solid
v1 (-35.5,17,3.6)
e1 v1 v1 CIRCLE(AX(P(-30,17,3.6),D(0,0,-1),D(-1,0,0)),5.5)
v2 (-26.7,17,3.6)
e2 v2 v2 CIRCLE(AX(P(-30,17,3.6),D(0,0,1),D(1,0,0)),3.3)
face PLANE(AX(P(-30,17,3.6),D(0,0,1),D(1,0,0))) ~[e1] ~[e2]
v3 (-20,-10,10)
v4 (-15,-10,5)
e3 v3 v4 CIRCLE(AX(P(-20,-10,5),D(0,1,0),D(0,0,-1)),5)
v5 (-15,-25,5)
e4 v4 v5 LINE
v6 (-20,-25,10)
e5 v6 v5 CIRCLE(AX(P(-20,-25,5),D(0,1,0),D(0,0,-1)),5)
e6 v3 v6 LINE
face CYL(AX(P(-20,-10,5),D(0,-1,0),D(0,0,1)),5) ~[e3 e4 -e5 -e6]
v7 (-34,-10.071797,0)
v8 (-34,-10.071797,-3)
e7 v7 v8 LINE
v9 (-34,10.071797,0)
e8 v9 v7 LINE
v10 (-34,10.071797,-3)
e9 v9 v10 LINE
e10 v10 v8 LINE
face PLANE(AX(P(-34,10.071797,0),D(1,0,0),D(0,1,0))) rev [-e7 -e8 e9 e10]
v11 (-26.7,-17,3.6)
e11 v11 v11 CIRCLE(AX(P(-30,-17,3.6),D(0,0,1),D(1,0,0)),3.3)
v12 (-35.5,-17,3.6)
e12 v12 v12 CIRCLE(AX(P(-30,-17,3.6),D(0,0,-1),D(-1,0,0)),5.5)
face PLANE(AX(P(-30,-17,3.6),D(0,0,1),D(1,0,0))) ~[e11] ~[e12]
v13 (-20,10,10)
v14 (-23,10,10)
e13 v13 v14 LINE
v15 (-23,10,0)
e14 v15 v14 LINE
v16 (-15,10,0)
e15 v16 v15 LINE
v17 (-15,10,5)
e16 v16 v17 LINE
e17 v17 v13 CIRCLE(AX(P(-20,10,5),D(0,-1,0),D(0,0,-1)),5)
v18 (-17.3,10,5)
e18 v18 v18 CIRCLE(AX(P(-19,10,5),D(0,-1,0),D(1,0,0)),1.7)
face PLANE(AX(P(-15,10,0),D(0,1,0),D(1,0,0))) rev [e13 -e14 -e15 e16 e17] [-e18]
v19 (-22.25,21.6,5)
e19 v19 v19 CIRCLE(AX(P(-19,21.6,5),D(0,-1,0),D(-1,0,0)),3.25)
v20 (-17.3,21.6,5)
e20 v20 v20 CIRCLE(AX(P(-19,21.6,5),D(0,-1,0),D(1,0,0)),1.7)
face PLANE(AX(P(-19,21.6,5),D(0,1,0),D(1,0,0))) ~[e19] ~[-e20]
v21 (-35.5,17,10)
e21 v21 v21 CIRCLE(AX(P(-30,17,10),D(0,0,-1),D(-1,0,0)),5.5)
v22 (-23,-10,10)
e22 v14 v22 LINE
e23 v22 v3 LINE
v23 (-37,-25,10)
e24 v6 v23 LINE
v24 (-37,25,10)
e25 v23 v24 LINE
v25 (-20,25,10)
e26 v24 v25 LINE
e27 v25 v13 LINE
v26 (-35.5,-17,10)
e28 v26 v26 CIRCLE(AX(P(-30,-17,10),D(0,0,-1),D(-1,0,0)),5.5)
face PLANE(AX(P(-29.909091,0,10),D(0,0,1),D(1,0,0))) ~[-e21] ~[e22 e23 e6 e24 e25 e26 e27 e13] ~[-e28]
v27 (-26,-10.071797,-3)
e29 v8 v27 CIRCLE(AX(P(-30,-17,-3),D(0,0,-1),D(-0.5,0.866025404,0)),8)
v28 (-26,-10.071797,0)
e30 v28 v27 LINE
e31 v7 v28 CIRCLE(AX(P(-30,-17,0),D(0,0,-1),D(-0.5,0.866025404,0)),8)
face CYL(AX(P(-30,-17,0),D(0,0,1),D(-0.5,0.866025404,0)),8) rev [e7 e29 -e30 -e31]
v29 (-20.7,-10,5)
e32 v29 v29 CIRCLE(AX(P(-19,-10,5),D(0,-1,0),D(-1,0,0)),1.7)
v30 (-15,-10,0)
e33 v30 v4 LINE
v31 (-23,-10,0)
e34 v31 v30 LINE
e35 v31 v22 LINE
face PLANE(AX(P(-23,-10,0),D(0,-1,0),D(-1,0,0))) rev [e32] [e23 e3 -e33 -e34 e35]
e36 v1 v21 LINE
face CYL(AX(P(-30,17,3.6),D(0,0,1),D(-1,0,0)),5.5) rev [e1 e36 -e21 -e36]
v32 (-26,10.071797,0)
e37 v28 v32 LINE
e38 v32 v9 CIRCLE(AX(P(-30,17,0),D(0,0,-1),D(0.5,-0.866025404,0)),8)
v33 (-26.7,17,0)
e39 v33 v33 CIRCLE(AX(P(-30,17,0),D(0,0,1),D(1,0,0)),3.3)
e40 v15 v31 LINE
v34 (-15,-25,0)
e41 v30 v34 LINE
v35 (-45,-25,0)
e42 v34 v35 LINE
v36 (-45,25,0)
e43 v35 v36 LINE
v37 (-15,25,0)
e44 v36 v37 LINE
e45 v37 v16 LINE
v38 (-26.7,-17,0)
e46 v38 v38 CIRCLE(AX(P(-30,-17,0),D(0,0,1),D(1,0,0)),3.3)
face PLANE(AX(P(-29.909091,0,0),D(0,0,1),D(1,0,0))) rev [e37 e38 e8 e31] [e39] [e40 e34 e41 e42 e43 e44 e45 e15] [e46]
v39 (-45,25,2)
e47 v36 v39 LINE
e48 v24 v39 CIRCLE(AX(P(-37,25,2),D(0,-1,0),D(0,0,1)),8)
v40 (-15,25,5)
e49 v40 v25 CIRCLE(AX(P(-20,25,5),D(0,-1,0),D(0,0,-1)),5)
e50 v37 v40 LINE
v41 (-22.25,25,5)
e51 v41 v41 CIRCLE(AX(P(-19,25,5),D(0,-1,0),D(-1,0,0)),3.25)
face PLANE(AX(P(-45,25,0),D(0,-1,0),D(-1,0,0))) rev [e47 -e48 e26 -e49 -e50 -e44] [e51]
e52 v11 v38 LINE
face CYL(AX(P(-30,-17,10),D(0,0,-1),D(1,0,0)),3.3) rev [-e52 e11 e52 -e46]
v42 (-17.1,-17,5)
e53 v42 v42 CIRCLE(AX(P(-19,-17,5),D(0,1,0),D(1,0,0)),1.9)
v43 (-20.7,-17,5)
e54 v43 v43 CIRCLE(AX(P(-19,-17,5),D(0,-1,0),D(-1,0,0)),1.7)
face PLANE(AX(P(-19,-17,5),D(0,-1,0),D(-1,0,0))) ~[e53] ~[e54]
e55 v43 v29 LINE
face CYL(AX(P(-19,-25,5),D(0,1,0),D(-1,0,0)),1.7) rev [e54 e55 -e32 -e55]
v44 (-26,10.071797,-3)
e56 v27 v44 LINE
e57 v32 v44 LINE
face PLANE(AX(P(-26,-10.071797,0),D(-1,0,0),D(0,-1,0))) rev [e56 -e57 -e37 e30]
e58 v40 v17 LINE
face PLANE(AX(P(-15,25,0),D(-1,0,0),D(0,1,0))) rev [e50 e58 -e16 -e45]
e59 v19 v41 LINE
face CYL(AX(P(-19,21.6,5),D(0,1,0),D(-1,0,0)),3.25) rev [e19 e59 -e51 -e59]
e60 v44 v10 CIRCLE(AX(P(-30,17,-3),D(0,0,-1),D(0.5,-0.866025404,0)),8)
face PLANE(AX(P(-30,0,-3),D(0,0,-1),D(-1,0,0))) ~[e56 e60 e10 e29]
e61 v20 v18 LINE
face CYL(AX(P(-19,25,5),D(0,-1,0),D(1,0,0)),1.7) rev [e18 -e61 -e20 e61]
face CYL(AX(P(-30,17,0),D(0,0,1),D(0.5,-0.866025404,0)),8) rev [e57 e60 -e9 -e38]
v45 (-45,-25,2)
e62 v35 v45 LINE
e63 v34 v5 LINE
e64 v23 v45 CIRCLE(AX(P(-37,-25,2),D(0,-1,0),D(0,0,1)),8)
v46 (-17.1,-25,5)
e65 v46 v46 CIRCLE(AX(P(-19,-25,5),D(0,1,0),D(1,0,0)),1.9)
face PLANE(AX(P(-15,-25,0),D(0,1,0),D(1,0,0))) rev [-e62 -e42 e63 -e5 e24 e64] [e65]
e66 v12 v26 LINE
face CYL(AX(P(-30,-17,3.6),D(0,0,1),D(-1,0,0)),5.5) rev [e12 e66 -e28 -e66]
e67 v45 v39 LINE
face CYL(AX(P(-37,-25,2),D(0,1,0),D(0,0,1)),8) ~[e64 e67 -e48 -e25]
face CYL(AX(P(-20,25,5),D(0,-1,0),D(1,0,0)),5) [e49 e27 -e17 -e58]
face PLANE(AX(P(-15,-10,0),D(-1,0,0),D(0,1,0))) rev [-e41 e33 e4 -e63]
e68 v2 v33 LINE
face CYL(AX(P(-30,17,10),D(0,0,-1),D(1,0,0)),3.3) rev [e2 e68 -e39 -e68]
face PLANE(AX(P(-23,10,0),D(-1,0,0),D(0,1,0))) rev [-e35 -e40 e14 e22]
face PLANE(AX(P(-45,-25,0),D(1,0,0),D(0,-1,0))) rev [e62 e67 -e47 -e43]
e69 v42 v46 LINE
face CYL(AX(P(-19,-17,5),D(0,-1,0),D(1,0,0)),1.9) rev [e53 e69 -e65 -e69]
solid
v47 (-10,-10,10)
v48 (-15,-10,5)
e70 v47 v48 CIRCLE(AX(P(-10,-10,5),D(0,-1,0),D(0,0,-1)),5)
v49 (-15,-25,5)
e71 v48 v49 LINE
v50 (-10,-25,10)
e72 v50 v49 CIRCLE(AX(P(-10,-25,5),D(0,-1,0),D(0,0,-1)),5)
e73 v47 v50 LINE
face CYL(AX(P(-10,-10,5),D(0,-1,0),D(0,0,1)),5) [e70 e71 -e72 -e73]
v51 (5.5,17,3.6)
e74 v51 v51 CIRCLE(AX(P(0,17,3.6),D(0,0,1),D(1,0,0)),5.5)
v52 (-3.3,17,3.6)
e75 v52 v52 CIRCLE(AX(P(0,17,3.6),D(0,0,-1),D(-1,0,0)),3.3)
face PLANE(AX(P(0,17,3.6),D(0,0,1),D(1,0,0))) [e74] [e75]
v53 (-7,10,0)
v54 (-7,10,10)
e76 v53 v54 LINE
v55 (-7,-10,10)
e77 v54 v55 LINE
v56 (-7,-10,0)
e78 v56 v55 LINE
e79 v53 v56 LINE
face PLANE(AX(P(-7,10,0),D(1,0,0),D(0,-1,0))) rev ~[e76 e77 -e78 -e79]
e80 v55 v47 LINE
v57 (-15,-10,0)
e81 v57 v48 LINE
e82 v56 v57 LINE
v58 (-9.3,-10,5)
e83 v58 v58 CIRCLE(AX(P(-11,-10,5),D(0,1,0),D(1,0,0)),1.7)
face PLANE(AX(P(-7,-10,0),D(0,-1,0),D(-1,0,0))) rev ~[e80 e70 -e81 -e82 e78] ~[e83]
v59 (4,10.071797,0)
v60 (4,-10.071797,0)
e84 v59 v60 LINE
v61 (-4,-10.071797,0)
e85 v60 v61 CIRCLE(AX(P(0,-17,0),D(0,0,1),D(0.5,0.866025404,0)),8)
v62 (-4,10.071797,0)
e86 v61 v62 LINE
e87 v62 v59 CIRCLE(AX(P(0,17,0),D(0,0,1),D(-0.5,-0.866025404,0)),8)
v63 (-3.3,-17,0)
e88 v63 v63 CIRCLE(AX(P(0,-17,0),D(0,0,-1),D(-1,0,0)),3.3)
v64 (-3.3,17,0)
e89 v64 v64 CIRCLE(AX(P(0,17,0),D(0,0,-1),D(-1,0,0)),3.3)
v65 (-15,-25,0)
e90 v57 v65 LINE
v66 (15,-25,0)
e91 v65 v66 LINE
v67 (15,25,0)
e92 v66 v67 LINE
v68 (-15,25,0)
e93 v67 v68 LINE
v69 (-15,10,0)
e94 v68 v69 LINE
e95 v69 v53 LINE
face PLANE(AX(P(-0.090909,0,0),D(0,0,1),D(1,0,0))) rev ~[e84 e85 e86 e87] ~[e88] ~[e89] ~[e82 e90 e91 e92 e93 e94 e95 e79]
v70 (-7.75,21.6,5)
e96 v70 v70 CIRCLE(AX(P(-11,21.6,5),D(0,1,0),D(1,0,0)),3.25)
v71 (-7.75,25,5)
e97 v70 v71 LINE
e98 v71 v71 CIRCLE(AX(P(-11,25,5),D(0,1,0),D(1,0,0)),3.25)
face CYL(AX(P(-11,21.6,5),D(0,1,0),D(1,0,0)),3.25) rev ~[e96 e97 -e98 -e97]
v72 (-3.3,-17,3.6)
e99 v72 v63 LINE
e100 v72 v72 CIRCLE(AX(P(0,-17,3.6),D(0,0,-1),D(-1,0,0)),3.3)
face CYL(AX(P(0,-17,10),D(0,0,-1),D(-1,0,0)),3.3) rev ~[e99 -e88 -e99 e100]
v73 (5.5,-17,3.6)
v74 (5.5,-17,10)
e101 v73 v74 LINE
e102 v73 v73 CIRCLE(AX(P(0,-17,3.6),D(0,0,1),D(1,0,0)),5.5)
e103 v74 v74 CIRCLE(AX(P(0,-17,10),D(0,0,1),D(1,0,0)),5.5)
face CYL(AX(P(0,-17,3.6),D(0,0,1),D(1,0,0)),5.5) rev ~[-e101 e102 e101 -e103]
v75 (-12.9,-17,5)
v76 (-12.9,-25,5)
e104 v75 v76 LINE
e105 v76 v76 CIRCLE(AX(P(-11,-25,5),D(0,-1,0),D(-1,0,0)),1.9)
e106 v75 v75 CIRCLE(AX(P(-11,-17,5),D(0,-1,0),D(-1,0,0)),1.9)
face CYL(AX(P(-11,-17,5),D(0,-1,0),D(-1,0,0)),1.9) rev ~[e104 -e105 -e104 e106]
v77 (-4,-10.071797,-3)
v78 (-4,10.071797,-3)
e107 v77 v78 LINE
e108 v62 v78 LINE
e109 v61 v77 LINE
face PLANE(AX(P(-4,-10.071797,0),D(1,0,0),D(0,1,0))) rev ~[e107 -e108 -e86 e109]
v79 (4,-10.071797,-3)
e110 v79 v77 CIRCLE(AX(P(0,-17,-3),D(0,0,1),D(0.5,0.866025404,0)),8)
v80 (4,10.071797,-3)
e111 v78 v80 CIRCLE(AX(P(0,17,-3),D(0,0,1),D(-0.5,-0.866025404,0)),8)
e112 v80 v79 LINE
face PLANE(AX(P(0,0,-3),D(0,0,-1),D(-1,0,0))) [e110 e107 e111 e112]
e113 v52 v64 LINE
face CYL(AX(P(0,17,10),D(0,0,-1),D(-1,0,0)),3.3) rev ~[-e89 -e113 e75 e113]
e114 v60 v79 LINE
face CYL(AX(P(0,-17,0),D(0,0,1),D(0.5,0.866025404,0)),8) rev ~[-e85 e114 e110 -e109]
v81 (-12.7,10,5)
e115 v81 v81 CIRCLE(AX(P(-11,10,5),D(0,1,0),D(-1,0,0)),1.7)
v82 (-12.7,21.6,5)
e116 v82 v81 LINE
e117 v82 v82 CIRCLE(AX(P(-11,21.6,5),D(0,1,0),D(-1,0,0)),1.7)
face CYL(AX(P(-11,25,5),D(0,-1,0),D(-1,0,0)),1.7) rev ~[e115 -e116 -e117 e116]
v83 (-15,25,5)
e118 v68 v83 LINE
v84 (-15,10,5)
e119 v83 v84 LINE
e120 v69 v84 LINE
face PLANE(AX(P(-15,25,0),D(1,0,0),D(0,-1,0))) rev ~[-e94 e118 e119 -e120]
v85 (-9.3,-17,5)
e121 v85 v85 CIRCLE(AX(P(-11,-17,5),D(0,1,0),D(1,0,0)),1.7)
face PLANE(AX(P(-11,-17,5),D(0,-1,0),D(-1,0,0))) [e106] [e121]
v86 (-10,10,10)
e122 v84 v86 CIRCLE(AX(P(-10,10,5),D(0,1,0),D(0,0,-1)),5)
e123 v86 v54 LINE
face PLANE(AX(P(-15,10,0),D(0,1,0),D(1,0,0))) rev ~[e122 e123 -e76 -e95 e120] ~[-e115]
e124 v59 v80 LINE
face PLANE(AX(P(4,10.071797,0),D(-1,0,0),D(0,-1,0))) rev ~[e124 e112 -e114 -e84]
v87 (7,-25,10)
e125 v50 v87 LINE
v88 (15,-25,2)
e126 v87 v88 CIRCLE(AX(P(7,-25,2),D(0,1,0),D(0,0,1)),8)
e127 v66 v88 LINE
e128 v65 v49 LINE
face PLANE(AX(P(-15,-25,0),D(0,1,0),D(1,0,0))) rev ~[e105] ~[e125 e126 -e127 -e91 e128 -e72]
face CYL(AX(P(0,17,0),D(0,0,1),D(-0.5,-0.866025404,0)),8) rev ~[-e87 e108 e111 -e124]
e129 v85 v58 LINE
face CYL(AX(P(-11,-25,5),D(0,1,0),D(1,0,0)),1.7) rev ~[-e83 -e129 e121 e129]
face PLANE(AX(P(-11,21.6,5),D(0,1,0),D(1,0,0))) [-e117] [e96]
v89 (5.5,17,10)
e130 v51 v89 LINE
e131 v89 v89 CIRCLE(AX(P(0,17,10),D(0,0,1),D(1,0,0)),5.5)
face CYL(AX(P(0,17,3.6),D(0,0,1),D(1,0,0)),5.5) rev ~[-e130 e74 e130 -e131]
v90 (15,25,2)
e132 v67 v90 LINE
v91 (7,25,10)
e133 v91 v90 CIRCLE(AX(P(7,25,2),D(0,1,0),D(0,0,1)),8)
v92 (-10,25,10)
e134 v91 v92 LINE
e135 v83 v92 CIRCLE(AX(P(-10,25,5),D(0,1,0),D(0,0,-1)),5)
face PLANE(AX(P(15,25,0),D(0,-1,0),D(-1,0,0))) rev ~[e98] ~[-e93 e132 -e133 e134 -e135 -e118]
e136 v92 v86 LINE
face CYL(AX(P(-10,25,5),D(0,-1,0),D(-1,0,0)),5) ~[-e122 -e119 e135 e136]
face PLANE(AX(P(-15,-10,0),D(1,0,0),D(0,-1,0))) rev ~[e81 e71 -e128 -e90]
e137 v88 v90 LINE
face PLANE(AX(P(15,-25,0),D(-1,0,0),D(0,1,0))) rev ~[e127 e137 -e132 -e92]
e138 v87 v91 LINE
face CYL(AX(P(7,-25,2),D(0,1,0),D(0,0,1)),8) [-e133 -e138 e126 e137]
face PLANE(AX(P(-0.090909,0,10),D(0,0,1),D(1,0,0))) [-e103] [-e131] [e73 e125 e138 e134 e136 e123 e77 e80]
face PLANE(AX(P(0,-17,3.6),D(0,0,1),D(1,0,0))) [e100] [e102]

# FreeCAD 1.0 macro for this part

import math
import FreeCAD as App
import Part
import Sketcher
from FreeCAD import Vector


def edges_at(feature, points):
    """Names of the edges that pass closest to the given points."""
    edges = feature.Shape.Edges
    near = lambda p: min(range(len(edges)), key=lambda i: edges[i].distToShape(Part.Vertex(*p))[0])
    return sorted({f"Edge{near(p) + 1}" for p in points})


def add_polygon(sketch, points):
    """Adds a closed chain of lines whose ends are joined by coincident constraints."""
    first, n = sketch.GeometryCount, len(points)
    for a, b in zip(points, points[1:] + points[:1]):
        sketch.addGeometry(Part.LineSegment(App.Vector(*a, 0), App.Vector(*b, 0)), False)
    for i in range(n):
        sketch.addConstraint(Sketcher.Constraint("Coincident", first + i, 2, first + (i + 1) % n, 1))

doc = App.newDocument("Part")
body = doc.addObject("PartDesign::Body", "Body")

sketch1 = doc.addObject("Sketcher::SketchObject", "Sketch")
body.addObject(sketch1)
sketch1.AttachmentSupport = (doc.XY_Plane, [""])
sketch1.MapMode = "FlatFace"
add_polygon(sketch1, [(-15, 25), (-15, 10), (-7, 10), (-7, -10), (-15, -10), (-15, -25), (15, -25), (15, 25)])
sketch1.addConstraint(Sketcher.Constraint("Vertical", 0))
sketch1.addConstraint(Sketcher.Constraint("Horizontal", 1))
sketch1.addConstraint(Sketcher.Constraint("Vertical", 2))
sketch1.addConstraint(Sketcher.Constraint("Horizontal", 3))
sketch1.addConstraint(Sketcher.Constraint("Vertical", 4))
sketch1.addConstraint(Sketcher.Constraint("Horizontal", 5))
sketch1.addConstraint(Sketcher.Constraint("Vertical", 6))
sketch1.addConstraint(Sketcher.Constraint("Horizontal", 7))
sketch1.addConstraint(Sketcher.Constraint("Symmetric", 4, 2, 6, 2, -1, 1))
sketch1.addConstraint(Sketcher.Constraint("Symmetric", 0, 2, 3, 2, -1))
sketch1.addConstraint(Sketcher.Constraint("DistanceX", 1, 1, 1, 2, 8.0))
sketch1.addConstraint(Sketcher.Constraint("DistanceX", 5, 1, 5, 2, 30.0))
sketch1.addConstraint(Sketcher.Constraint("DistanceY", 0, 2, 0, 1, 15.0))
sketch1.addConstraint(Sketcher.Constraint("DistanceY", 2, 2, 2, 1, 20.0))
pad1 = doc.addObject("PartDesign::Pad", "Pad")
body.addObject(pad1)
pad1.Profile = sketch1
pad1.Length = 10

sketch2 = doc.addObject("Sketcher::SketchObject", "Sketch001")
body.addObject(sketch2)
sketch2.AttachmentSupport = (doc.XY_Plane, [""])
sketch2.MapMode = "FlatFace"
sketch2.AttachmentOffset = App.Placement(Vector(0, 0, 10), App.Rotation())
sketch2.addGeometry(Part.Circle(Vector(0, 17, 0), Vector(0, 0, 1), 3.3), False)
sketch2.addGeometry(Part.Circle(Vector(0, -17, 0), Vector(0, 0, 1), 3.3), False)
sketch2.addConstraint(Sketcher.Constraint("Equal", 0, 1))
sketch2.addConstraint(Sketcher.Constraint("Symmetric", 0, 3, 1, 3, -1, 1))
sketch2.addConstraint(Sketcher.Constraint("PointOnObject", 0, 3, -2))
sketch2.addConstraint(Sketcher.Constraint("Diameter", 0, 6.6))
sketch2.addConstraint(Sketcher.Constraint("DistanceY", -1, 1, 0, 3, 17.0))
doc.recompute()
hole = doc.addObject("PartDesign::Hole", "Hole")
body.addObject(hole)
hole.Profile = sketch2
hole.ThreadType = "None"
hole.Diameter = 6.6
hole.DepthType = "ThroughAll"
hole.HoleCutType = "Counterbore"
hole.HoleCutDiameter = 11
hole.HoleCutDepth = 6.4

sketch3 = doc.addObject("Sketcher::SketchObject", "Sketch002")
body.addObject(sketch3)
sketch3.AttachmentSupport = (doc.XZ_Plane, [""])
sketch3.MapMode = "FlatFace"
sketch3.AttachmentOffset = App.Placement(Vector(0, 0, -25), App.Rotation())
sketch3.addGeometry(Part.Circle(Vector(-11, 5, 0), Vector(0, 0, 1), 1.7), False)
sketch3.addConstraint(Sketcher.Constraint("Diameter", 0, 3.4))
sketch3.addConstraint(Sketcher.Constraint("DistanceX", 0, 3, -1, 1, 11.0))
sketch3.addConstraint(Sketcher.Constraint("DistanceY", -1, 1, 0, 3, 5.0))
doc.recompute()
hole2 = doc.addObject("PartDesign::Hole", "Hole001")
body.addObject(hole2)
hole2.Profile = sketch3
hole2.ThreadType = "None"
hole2.Diameter = 3.4
hole2.DepthType = "Dimension"
hole2.Depth = 15
hole2.DrillPoint = "Flat"
hole2.HoleCutType = "Counterbore"
hole2.HoleCutDiameter = 6.5
hole2.HoleCutDepth = 3.4
hole2.Reversed = True

sketch4 = doc.addObject("Sketcher::SketchObject", "Sketch003")
body.addObject(sketch4)
sketch4.AttachmentSupport = (doc.XZ_Plane, [""])
sketch4.MapMode = "FlatFace"
sketch4.AttachmentOffset = App.Placement(Vector(0, 0, 25), App.Rotation())
sketch4.addGeometry(Part.Circle(Vector(-11, 5, 0), Vector(0, 0, 1), 1.7), False)
sketch4.addConstraint(Sketcher.Constraint("Diameter", 0, 3.4))
sketch4.addConstraint(Sketcher.Constraint("DistanceX", 0, 3, -1, 1, 11.0))
sketch4.addConstraint(Sketcher.Constraint("DistanceY", -1, 1, 0, 3, 5.0))
doc.recompute()
hole3 = doc.addObject("PartDesign::Hole", "Hole002")
body.addObject(hole3)
hole3.Profile = sketch4
hole3.ThreadType = "None"
hole3.Diameter = 3.4
hole3.DepthType = "ThroughAll"
hole3.HoleCutType = "Counterbore"
hole3.HoleCutDiameter = 3.8
hole3.HoleCutDepth = 8

sketch5 = doc.addObject("Sketcher::SketchObject", "Sketch004")
body.addObject(sketch5)
sketch5.AttachmentSupport = (doc.XY_Plane, [""])
sketch5.MapMode = "FlatFace"
sketch5.addGeometry(Part.ArcOfCircle(Part.Circle(Vector(0, 17, 0), Vector(0, 0, 1), 8), math.radians(-120), math.radians(-60)), False)
sketch5.addGeometry(Part.LineSegment(Vector(4, 10, 0), Vector(4, -10, 0)), False)
sketch5.addGeometry(Part.ArcOfCircle(Part.Circle(Vector(0, -17, 0), Vector(0, 0, 1), 8), math.radians(60), math.radians(120)), False)
sketch5.addGeometry(Part.LineSegment(Vector(-4, -10, 0), Vector(-4, 10, 0)), False)
sketch5.addConstraint(Sketcher.Constraint("Coincident", 0, 2, 1, 1))
sketch5.addConstraint(Sketcher.Constraint("Coincident", 1, 2, 2, 1))
sketch5.addConstraint(Sketcher.Constraint("Coincident", 2, 2, 3, 1))
sketch5.addConstraint(Sketcher.Constraint("Coincident", 3, 2, 0, 1))
sketch5.addConstraint(Sketcher.Constraint("Vertical", 1))
sketch5.addConstraint(Sketcher.Constraint("Vertical", 3))
sketch5.addConstraint(Sketcher.Constraint("Equal", 0, 2))
sketch5.addConstraint(Sketcher.Constraint("Symmetric", 0, 3, 2, 3, -1, 1))
sketch5.addConstraint(Sketcher.Constraint("Symmetric", 1, 2, 2, 2, -2))
sketch5.addConstraint(Sketcher.Constraint("Radius", 0, 8.0))
sketch5.addConstraint(Sketcher.Constraint("DistanceY", -1, 1, 0, 3, 17.0))
sketch5.addConstraint(Sketcher.Constraint("DistanceX", -1, 1, 0, 2, 4.0))
pad2 = doc.addObject("PartDesign::Pad", "Pad001")
body.addObject(pad2)
pad2.Profile = sketch5
pad2.Length = 3
pad2.Reversed = True
doc.recompute()

fillet = doc.addObject("PartDesign::Fillet", "Fillet")
body.addObject(fillet)
fillet.Base = (pad2, edges_at(pad2, [(-15, -17.5, 10), (-15, 17.5, 10)]))
fillet.Radius = 5
doc.recompute()

fillet2 = doc.addObject("PartDesign::Fillet", "Fillet001")
body.addObject(fillet2)
fillet2.Base = (fillet, edges_at(fillet, [(15, 0, 10)]))
fillet2.Radius = 8
body2 = doc.addObject("PartDesign::Body", "Body001")
doc.recompute()

mirroring = doc.addObject("Part::Mirroring", "Mirroring")
mirroring.Source = body
mirroring.Base = Vector(-15, 0, 10)
mirroring.Normal = Vector(1, 0, 0)
body2.BaseFeature = mirroring
doc.recompute()
mirroring.Visibility = False

doc.recompute()
